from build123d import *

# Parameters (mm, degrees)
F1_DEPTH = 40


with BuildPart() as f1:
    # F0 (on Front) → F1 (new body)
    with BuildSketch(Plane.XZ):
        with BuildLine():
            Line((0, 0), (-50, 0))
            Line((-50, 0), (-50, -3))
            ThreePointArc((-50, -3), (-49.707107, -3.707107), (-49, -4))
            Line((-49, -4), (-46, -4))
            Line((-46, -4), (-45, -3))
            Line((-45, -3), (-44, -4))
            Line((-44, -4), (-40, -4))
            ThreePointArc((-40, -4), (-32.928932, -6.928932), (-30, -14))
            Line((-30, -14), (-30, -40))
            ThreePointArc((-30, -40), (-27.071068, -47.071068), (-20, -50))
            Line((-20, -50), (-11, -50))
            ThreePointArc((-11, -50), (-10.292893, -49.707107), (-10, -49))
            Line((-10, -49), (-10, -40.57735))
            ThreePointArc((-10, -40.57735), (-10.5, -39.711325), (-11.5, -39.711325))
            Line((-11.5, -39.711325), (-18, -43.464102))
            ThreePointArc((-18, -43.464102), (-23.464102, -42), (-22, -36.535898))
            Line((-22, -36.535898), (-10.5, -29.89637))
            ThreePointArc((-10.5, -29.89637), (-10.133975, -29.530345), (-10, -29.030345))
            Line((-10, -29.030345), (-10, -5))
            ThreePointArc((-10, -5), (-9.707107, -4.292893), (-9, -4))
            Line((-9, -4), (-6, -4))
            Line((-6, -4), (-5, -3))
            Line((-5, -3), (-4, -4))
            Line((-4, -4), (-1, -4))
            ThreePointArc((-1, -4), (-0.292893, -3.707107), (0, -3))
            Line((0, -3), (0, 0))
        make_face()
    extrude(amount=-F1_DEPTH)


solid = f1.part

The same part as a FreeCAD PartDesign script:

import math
import FreeCAD as App
import Part
import Sketcher

V = App.Vector
Q = App.Units.Quantity

doc = App.newDocument("Part")
body = doc.addObject("PartDesign::Body", "Body")

# Sketch on XZ plane
sketch1 = doc.addObject("Sketcher::SketchObject", "Sketch")
body.addObject(sketch1)
sketch1.AttachmentSupport = (doc.XZ_Plane, [""])
sketch1.MapMode = "FlatFace"
sketch1.addGeometry(Part.LineSegment(V(0, 0, 0), V(-50, 0, 0)), False)
sketch1.addGeometry(Part.LineSegment(V(-50, 0, 0), V(-50, -3, 0)), False)
sketch1.addGeometry(Part.ArcOfCircle(Part.Circle(V(-49.000001, -3.000001, 0), V(0, 0, 1), 0.999999), math.radians(179.999957), math.radians(270.000043)), False)
sketch1.addGeometry(Part.LineSegment(V(-49, -4, 0), V(-46, -4, 0)), False)
sketch1.addGeometry(Part.LineSegment(V(-46, -4, 0), V(-45, -3, 0)), False)
sketch1.addGeometry(Part.LineSegment(V(-45, -3, 0), V(-44, -4, 0)), False)
sketch1.addGeometry(Part.LineSegment(V(-44, -4, 0), V(-40, -4, 0)), False)
sketch1.addGeometry(Part.ArcOfCircle(Part.Circle(V(-39.999999, -13.999999, 0), V(0, 0, 1), 9.999999), math.radians(-0.000004), math.radians(90.000004)), False)
sketch1.addGeometry(Part.LineSegment(V(-30, -14, 0), V(-30, -40, 0)), False)
sketch1.addGeometry(Part.ArcOfCircle(Part.Circle(V(-20.000001, -40.000001, 0), V(0, 0, 1), 9.999999), math.radians(179.999996), math.radians(270.000004)), False)
sketch1.addGeometry(Part.LineSegment(V(-20, -50, 0), V(-11, -50, 0)), False)
sketch1.addGeometry(Part.ArcOfCircle(Part.Circle(V(-10.999999, -49.000001, 0), V(0, 0, 1), 0.999999), math.radians(-90.000043), math.radians(0.000043)), False)
sketch1.addGeometry(Part.LineSegment(V(-10, -49, 0), V(-10, -40.57735, 0)), False)
sketch1.addGeometry(Part.ArcOfCircle(Part.Circle(V(-11, -40.57735, 0), V(0, 0, 1), 1), math.radians(0.000023), math.radians(120)), False)
sketch1.addGeometry(Part.LineSegment(V(-11.5, -39.711325, 0), V(-18, -43.464102, 0)), False)
sketch1.addGeometry(Part.ArcOfCircle(Part.Circle(V(-20, -40, 0), V(0, 0, 1), 4), math.radians(119.999997), math.radians(299.999997)), False)
sketch1.addGeometry(Part.LineSegment(V(-22, -36.535898, 0), V(-10.5, -29.89637, 0)), False)
sketch1.addGeometry(Part.ArcOfCircle(Part.Circle(V(-11.000001, -29.030344, 0), V(0, 0, 1), 1.000001), math.radians(-59.999968), math.radians(-0.000055)), False)
sketch1.addGeometry(Part.LineSegment(V(-10, -29.030345, 0), V(-10, -5, 0)), False)
sketch1.addGeometry(Part.ArcOfCircle(Part.Circle(V(-9.000001, -4.999999, 0), V(0, 0, 1), 0.999999), math.radians(89.999957), math.radians(180.000043)), False)
sketch1.addGeometry(Part.LineSegment(V(-9, -4, 0), V(-6, -4, 0)), False)
sketch1.addGeometry(Part.LineSegment(V(-6, -4, 0), V(-5, -3, 0)), False)
sketch1.addGeometry(Part.LineSegment(V(-5, -3, 0), V(-4, -4, 0)), False)
sketch1.addGeometry(Part.LineSegment(V(-4, -4, 0), V(-1, -4, 0)), False)
sketch1.addGeometry(Part.ArcOfCircle(Part.Circle(V(-0.999999, -3.000001, 0), V(0, 0, 1), 0.999999), math.radians(-90.000043), math.radians(0.000043)), False)
sketch1.addGeometry(Part.LineSegment(V(0, -3, 0), V(0, 0, 0)), False)
sketch1.addConstraint(Sketcher.Constraint("Coincident", 0, 2, 1, 1))
sketch1.addConstraint(Sketcher.Constraint("Tangent", 1, 2, 2, 1))
sketch1.addConstraint(Sketcher.Constraint("Tangent", 2, 2, 3, 1))
sketch1.addConstraint(Sketcher.Constraint("Coincident", 3, 2, 4, 1))
sketch1.addConstraint(Sketcher.Constraint("Coincident", 4, 2, 5, 1))
sketch1.addConstraint(Sketcher.Constraint("Coincident", 5, 2, 6, 1))
sketch1.addConstraint(Sketcher.Constraint("Tangent", 6, 2, 7, 2))
sketch1.addConstraint(Sketcher.Constraint("Tangent", 7, 1, 8, 1))
sketch1.addConstraint(Sketcher.Constraint("Tangent", 8, 2, 9, 1))
sketch1.addConstraint(Sketcher.Constraint("Tangent", 9, 2, 10, 1))
sketch1.addConstraint(Sketcher.Constraint("Tangent", 10, 2, 11, 1))
sketch1.addConstraint(Sketcher.Constraint("Tangent", 11, 2, 12, 1))
sketch1.addConstraint(Sketcher.Constraint("Tangent", 12, 2, 13, 1))
sketch1.addConstraint(Sketcher.Constraint("Tangent", 13, 2, 14, 1))
sketch1.addConstraint(Sketcher.Constraint("Tangent", 14, 2, 15, 2))
sketch1.addConstraint(Sketcher.Constraint("Tangent", 15, 1, 16, 1))
sketch1.addConstraint(Sketcher.Constraint("Tangent", 16, 2, 17, 1))
sketch1.addConstraint(Sketcher.Constraint("Tangent", 17, 2, 18, 1))
sketch1.addConstraint(Sketcher.Constraint("Tangent", 18, 2, 19, 2))
sketch1.addConstraint(Sketcher.Constraint("Tangent", 19, 1, 20, 1))
sketch1.addConstraint(Sketcher.Constraint("Coincident", 20, 2, 21, 1))
sketch1.addConstraint(Sketcher.Constraint("Coincident", 21, 2, 22, 1))
sketch1.addConstraint(Sketcher.Constraint("Coincident", 22, 2, 23, 1))
sketch1.addConstraint(Sketcher.Constraint("Tangent", 23, 2, 24, 1))
sketch1.addConstraint(Sketcher.Constraint("Tangent", 24, 2, 25, 1))
sketch1.addConstraint(Sketcher.Constraint("Coincident", 25, 2, 0, 1))
sketch1.addConstraint(Sketcher.Constraint("Horizontal", 0))
sketch1.addConstraint(Sketcher.Constraint("Vertical", 1))
sketch1.addConstraint(Sketcher.Constraint("Horizontal", 3))
sketch1.addConstraint(Sketcher.Constraint("Horizontal", 6))
sketch1.addConstraint(Sketcher.Constraint("Vertical", 8))
sketch1.addConstraint(Sketcher.Constraint("Horizontal", 10))
sketch1.addConstraint(Sketcher.Constraint("Vertical", 12))
sketch1.addConstraint(Sketcher.Constraint("Vertical", 18))
sketch1.addConstraint(Sketcher.Constraint("Horizontal", 20))
sketch1.addConstraint(Sketcher.Constraint("Horizontal", 23))
sketch1.addConstraint(Sketcher.Constraint("Vertical", 25))
sketch1.addConstraint(Sketcher.Constraint("Coincident", 25, 2, -1, 1))
sketch1.addConstraint(Sketcher.Constraint("Coincident", 15, 3, 9, 3))
sketch1.addConstraint(Sketcher.Constraint("Equal", 7, 9))
sketch1.addConstraint(Sketcher.Constraint("Equal", 2, 11))
sketch1.addConstraint(Sketcher.Constraint("Equal", 11, 13))
sketch1.addConstraint(Sketcher.Constraint("Equal", 13, 17))
sketch1.addConstraint(Sketcher.Constraint("Equal", 17, 19))
sketch1.addConstraint(Sketcher.Constraint("Equal", 19, 24))
sketch1.addConstraint(Sketcher.Constraint("Perpendicular", 4, 5))
sketch1.addConstraint(Sketcher.Constraint("Parallel", 14, 16))
sketch1.addConstraint(Sketcher.Constraint("Perpendicular", 5, 21))
sketch1.addConstraint(Sketcher.Constraint("Perpendicular", 21, 22))
sketch1.addConstraint(Sketcher.Constraint("Horizontal", 2, 3, 24, 3))
sketch1.addConstraint(Sketcher.Constraint("Horizontal", 1, 2, 4, 2))
sketch1.addConstraint(Sketcher.Constraint("Horizontal", 3, 2, 5, 2))
sketch1.addConstraint(Sketcher.Constraint("Horizontal", 6, 2, 19, 1))
sketch1.addConstraint(Sketcher.Constraint("Horizontal", 4, 2, 21, 2))
sketch1.addConstraint(Sketcher.Constraint("Vertical", 13, 3, 17, 3))
sketch1.addConstraint(Sketcher.Constraint("Equal", 3, 20))
sketch1.addConstraint(Sketcher.Constraint("Equal", 20, 23))
sketch1.addConstraint(Sketcher.Constraint("Equal", 23, 1))
sketch1.addConstraint(Sketcher.Constraint("Equal", 4, 5))
sketch1.addConstraint(Sketcher.Constraint("Radius", 2, 0.999999))
sketch1.addConstraint(Sketcher.Constraint("Radius", 7, 9.999999))
sketch1.addConstraint(Sketcher.Constraint("Radius", 15, 4.0))
sketch1.addConstraint(Sketcher.Constraint("DistanceX", 0, 2, 0, 1, 50.0))
sketch1.addConstraint(Sketcher.Constraint("DistanceX", 3, 1, 3, 2, 3.0))
sketch1.addConstraint(Sketcher.Constraint("DistanceX", 6, 1, 6, 2, 4.0))
sketch1.addConstraint(Sketcher.Constraint("DistanceY", 8, 2, 8, 1, 26.0))
sketch1.addConstraint(Sketcher.Constraint("Angle", 14, Q("-149.999998 deg")))
pad1 = doc.addObject("PartDesign::Pad", "Pad")
body.addObject(pad1)
pad1.Profile = sketch1
pad1.Length = 40
pad1.Reversed = True

doc.recompute()
